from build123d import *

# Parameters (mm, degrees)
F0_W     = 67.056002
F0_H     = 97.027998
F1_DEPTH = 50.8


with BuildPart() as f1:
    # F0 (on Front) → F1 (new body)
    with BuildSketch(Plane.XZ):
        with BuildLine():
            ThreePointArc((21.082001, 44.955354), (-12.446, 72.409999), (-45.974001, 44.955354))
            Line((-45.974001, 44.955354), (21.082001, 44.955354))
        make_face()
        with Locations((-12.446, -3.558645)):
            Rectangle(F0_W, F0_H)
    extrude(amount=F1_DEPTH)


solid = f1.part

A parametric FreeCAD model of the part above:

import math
import FreeCAD as App
import Part
import Sketcher
Q = App.Units.Quantity

doc = App.newDocument("Part")
params = doc.addObject("Spreadsheet::Sheet", "Params")
for row, (alias, value) in enumerate([
    ("sketch1_width", "2.6400001 in"),
    ("sketch1_height", "3.8199999 in"),
    ("pad1_length", "2 in"),
], start=1):
    params.set(f"A{row}", alias)
    params.set(f"B{row}", "=" + value)
    params.setAlias(f"B{row}", alias)

body = doc.addObject("PartDesign::Body", "Body")

sketch1 = body.newObject("Sketcher::SketchObject", "Sketch")
sketch1.AttachmentSupport = (doc.getObject("XZ_Plane"), [""])
sketch1.MapMode = "FlatFace"
sketch1.addGeometry([
    Part.ArcOfCircle(Part.Circle(App.Vector(-12, 38, 0), App.Vector(0, 0, 1), 34), math.radians(11), math.radians(169)),
    Part.LineSegment(App.Vector(-46, 45, 0), App.Vector(-46, -52, 0)),
    Part.LineSegment(App.Vector(-46, -52, 0), App.Vector(21, -52, 0)),
    Part.LineSegment(App.Vector(21, -52, 0), App.Vector(21, 45, 0)),
], False)
sketch1.addConstraint([
    Sketcher.Constraint("Coincident", 0, 2, 1, 1),
    Sketcher.Constraint("Coincident", 1, 2, 2, 1),
    Sketcher.Constraint("Coincident", 2, 2, 3, 1),
    Sketcher.Constraint("Coincident", 3, 2, 0, 1),
    Sketcher.Constraint("Vertical", 1),
    Sketcher.Constraint("Horizontal", 2),
    Sketcher.Constraint("Vertical", 3),
    Sketcher.Constraint("Horizontal", 0, 2, 3, 2),
    Sketcher.Constraint("DistanceX", 2, 1, 2, 2, Q("2.6400001 in")),
    Sketcher.Constraint("DistanceY", 1, 2, 1, 1, Q("3.8199999 in")),
    Sketcher.Constraint("DistanceX", 0, 3, -1, 1, Q("0.49 in")),
    Sketcher.Constraint("Radius", 0, Q("34.199757 mm")),
    Sketcher.Constraint("DistanceY", -1, 1, 0, 3, Q("38.210242 mm")),
])
sketch1.setExpression("Constraints[8]", "Params.sketch1_width")
sketch1.setExpression("Constraints[9]", "Params.sketch1_height")
pad1 = body.newObject("PartDesign::Pad", "Pad")
pad1.Profile = sketch1
pad1.setExpression("Length", "Params.pad1_length")

doc.recompute()
